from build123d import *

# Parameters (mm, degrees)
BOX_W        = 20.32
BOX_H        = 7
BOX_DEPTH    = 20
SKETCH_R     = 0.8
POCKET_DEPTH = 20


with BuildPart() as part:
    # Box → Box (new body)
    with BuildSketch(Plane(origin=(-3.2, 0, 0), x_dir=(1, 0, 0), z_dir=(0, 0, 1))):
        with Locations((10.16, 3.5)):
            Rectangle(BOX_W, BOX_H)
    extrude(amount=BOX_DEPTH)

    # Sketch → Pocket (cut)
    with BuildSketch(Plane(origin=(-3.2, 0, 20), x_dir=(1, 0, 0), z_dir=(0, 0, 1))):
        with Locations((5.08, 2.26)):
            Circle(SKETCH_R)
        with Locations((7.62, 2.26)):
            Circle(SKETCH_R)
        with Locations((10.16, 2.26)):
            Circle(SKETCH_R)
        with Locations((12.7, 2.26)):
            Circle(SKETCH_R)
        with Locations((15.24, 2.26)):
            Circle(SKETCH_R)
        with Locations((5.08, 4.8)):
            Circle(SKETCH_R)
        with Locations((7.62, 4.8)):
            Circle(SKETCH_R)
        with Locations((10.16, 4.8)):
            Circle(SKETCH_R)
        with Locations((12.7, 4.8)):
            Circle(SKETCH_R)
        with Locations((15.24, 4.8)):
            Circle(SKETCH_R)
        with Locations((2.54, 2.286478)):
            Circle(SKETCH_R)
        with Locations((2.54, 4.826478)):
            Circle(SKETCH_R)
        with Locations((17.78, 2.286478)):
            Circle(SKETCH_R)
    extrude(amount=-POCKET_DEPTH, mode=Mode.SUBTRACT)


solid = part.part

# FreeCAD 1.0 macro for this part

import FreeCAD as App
import Part
import Sketcher
Q = App.Units.Quantity


def add_polygon(sketch, points):
    """Adds a closed chain of lines whose ends are joined by coincident constraints."""
    first, n = sketch.GeometryCount, len(points)
    for a, b in zip(points, points[1:] + points[:1]):
        sketch.addGeometry(Part.LineSegment(App.Vector(*a, 0), App.Vector(*b, 0)), False)
    for i in range(n):
        sketch.addConstraint(Sketcher.Constraint("Coincident", first + i, 2, first + (i + 1) % n, 1))

doc = App.newDocument("Part")
body = doc.addObject("PartDesign::Body", "Body")

# Sketch on XY plane
sketch1 = doc.addObject("Sketcher::SketchObject", "Sketch")
body.addObject(sketch1)
sketch1.AttachmentSupport = (doc.XY_Plane, [""])
sketch1.MapMode = "FlatFace"
add_polygon(sketch1, [(-3, 7), (-3, 0), (17, 0), (17, 7)])  # lines 0-3
sketch1.addConstraint(Sketcher.Constraint("Vertical", 0))
sketch1.addConstraint(Sketcher.Constraint("Horizontal", 1))
sketch1.addConstraint(Sketcher.Constraint("Vertical", 2))
sketch1.addConstraint(Sketcher.Constraint("Horizontal", 3))
sketch1.addConstraint(Sketcher.Constraint("PointOnObject", 0, 2, -1))
sketch1.addConstraint(Sketcher.Constraint("DistanceY", 0, 2, 0, 1, Q("7 mm")))
sketch1.addConstraint(Sketcher.Constraint("DistanceX", 1, 1, 1, 2, Q("20.32 mm")))
sketch1.addConstraint(Sketcher.Constraint("DistanceX", 0, 2, -1, 1, Q("3.2 mm")))
pad1 = doc.addObject("PartDesign::Pad", "Pad")
body.addObject(pad1)
pad1.Profile = sketch1
pad1.Length = 20

# Sketch on XY plane
sketch2 = doc.addObject("Sketcher::SketchObject", "Sketch001")
body.addObject(sketch2)
sketch2.AttachmentSupport = (doc.XY_Plane, [""])
sketch2.MapMode = "FlatFace"
sketch2.AttachmentOffset = App.Placement(App.Vector(0, 0, 20), App.Rotation())
sketch2.addGeometry(Part.Circle(App.Vector(1.9, 2.3, 0), App.Vector(0, 0, 1), 0.8), False)
sketch2.addGeometry(Part.Circle(App.Vector(4.4, 2.3, 0), App.Vector(0, 0, 1), 0.8), False)
sketch2.addGeometry(Part.Circle(App.Vector(7, 2.3, 0), App.Vector(0, 0, 1), 0.8), False)
sketch2.addGeometry(Part.Circle(App.Vector(9.5, 2.3, 0), App.Vector(0, 0, 1), 0.8), False)
sketch2.addGeometry(Part.Circle(App.Vector(12, 2.3, 0), App.Vector(0, 0, 1), 0.8), False)
sketch2.addGeometry(Part.Circle(App.Vector(1.9, 4.8, 0), App.Vector(0, 0, 1), 0.8), False)
sketch2.addGeometry(Part.Circle(App.Vector(4.4, 4.8, 0), App.Vector(0, 0, 1), 0.8), False)
sketch2.addGeometry(Part.Circle(App.Vector(7, 4.8, 0), App.Vector(0, 0, 1), 0.8), False)
sketch2.addGeometry(Part.Circle(App.Vector(9.5, 4.8, 0), App.Vector(0, 0, 1), 0.8), False)
sketch2.addGeometry(Part.Circle(App.Vector(12, 4.8, 0), App.Vector(0, 0, 1), 0.8), False)
sketch2.addGeometry(Part.Circle(App.Vector(-0.7, 2.3, 0), App.Vector(0, 0, 1), 0.8), False)
sketch2.addGeometry(Part.Circle(App.Vector(-0.7, 4.8, 0), App.Vector(0, 0, 1), 0.8), False)
sketch2.addGeometry(Part.Circle(App.Vector(14.6, 2.3, 0), App.Vector(0, 0, 1), 0.8), False)
sketch2.addConstraint(Sketcher.Constraint("Equal", 0, 1))
sketch2.addConstraint(Sketcher.Constraint("Equal", 1, 2))
sketch2.addConstraint(Sketcher.Constraint("Equal", 2, 3))
sketch2.addConstraint(Sketcher.Constraint("Equal", 3, 4))
sketch2.addConstraint(Sketcher.Constraint("Equal", 4, 5))
sketch2.addConstraint(Sketcher.Constraint("Equal", 5, 6))
sketch2.addConstraint(Sketcher.Constraint("Equal", 6, 7))
sketch2.addConstraint(Sketcher.Constraint("Equal", 7, 8))
sketch2.addConstraint(Sketcher.Constraint("Equal", 8, 9))
sketch2.addConstraint(Sketcher.Constraint("Equal", 9, 10))
sketch2.addConstraint(Sketcher.Constraint("Equal", 10, 11))
sketch2.addConstraint(Sketcher.Constraint("Equal", 11, 12))
sketch2.addConstraint(Sketcher.Constraint("Horizontal", 0, 3, 1, 3))
sketch2.addConstraint(Sketcher.Constraint("Horizontal", 1, 3, 2, 3))
sketch2.addConstraint(Sketcher.Constraint("Horizontal", 2, 3, 3, 3))
sketch2.addConstraint(Sketcher.Constraint("Horizontal", 3, 3, 4, 3))
sketch2.addConstraint(Sketcher.Constraint("Horizontal", 5, 3, 6, 3))
sketch2.addConstraint(Sketcher.Constraint("Horizontal", 6, 3, 7, 3))
sketch2.addConstraint(Sketcher.Constraint("Horizontal", 7, 3, 8, 3))
sketch2.addConstraint(Sketcher.Constraint("Horizontal", 8, 3, 9, 3))
sketch2.addConstraint(Sketcher.Constraint("Horizontal", 10, 3, 12, 3))
sketch2.addConstraint(Sketcher.Constraint("Vertical", 0, 3, 5, 3))
sketch2.addConstraint(Sketcher.Constraint("Vertical", 1, 3, 6, 3))
sketch2.addConstraint(Sketcher.Constraint("Vertical", 2, 3, 7, 3))
sketch2.addConstraint(Sketcher.Constraint("Vertical", 3, 3, 8, 3))
sketch2.addConstraint(Sketcher.Constraint("Vertical", 4, 3, 9, 3))
sketch2.addConstraint(Sketcher.Constraint("Vertical", 10, 3, 11, 3))
sketch2.addConstraint(Sketcher.Constraint("Diameter", 0, Q("1.6 mm")))
sketch2.addConstraint(Sketcher.Constraint("DistanceX", -1, 1, 3, 3, Q("9.5 mm")))
sketch2.addConstraint(Sketcher.Constraint("DistanceY", -1, 1, 5, 3, Q("4.8 mm")))
sketch2.addConstraint(Sketcher.Constraint("DistanceX", -1, 1, 0, 3, Q("1.88 mm")))
sketch2.addConstraint(Sketcher.Constraint("DistanceY", -1, 1, 0, 3, Q("2.26 mm")))
sketch2.addConstraint(Sketcher.Constraint("DistanceX", -1, 1, 1, 3, Q("4.42 mm")))
sketch2.addConstraint(Sketcher.Constraint("DistanceX", -1, 1, 2, 3, Q("6.96 mm")))
sketch2.addConstraint(Sketcher.Constraint("DistanceX", -1, 1, 4, 3, Q("12.04 mm")))
sketch2.addConstraint(Sketcher.Constraint("DistanceX", 10, 3, -1, 1, Q("0.66 mm")))
sketch2.addConstraint(Sketcher.Constraint("DistanceX", -1, 1, 12, 3, Q("14.58 mm")))
sketch2.addConstraint(Sketcher.Constraint("DistanceY", 10, 3, 11, 3, Q("2.54 mm")))
sketch2.addConstraint(Sketcher.Constraint("DistanceY", 0, 3, 10, 3, Q("0.026478 mm")))
pocket1 = doc.addObject("PartDesign::Pocket", "Pocket")
body.addObject(pocket1)
pocket1.Profile = sketch2
pocket1.Length = 20

doc.recompute()
